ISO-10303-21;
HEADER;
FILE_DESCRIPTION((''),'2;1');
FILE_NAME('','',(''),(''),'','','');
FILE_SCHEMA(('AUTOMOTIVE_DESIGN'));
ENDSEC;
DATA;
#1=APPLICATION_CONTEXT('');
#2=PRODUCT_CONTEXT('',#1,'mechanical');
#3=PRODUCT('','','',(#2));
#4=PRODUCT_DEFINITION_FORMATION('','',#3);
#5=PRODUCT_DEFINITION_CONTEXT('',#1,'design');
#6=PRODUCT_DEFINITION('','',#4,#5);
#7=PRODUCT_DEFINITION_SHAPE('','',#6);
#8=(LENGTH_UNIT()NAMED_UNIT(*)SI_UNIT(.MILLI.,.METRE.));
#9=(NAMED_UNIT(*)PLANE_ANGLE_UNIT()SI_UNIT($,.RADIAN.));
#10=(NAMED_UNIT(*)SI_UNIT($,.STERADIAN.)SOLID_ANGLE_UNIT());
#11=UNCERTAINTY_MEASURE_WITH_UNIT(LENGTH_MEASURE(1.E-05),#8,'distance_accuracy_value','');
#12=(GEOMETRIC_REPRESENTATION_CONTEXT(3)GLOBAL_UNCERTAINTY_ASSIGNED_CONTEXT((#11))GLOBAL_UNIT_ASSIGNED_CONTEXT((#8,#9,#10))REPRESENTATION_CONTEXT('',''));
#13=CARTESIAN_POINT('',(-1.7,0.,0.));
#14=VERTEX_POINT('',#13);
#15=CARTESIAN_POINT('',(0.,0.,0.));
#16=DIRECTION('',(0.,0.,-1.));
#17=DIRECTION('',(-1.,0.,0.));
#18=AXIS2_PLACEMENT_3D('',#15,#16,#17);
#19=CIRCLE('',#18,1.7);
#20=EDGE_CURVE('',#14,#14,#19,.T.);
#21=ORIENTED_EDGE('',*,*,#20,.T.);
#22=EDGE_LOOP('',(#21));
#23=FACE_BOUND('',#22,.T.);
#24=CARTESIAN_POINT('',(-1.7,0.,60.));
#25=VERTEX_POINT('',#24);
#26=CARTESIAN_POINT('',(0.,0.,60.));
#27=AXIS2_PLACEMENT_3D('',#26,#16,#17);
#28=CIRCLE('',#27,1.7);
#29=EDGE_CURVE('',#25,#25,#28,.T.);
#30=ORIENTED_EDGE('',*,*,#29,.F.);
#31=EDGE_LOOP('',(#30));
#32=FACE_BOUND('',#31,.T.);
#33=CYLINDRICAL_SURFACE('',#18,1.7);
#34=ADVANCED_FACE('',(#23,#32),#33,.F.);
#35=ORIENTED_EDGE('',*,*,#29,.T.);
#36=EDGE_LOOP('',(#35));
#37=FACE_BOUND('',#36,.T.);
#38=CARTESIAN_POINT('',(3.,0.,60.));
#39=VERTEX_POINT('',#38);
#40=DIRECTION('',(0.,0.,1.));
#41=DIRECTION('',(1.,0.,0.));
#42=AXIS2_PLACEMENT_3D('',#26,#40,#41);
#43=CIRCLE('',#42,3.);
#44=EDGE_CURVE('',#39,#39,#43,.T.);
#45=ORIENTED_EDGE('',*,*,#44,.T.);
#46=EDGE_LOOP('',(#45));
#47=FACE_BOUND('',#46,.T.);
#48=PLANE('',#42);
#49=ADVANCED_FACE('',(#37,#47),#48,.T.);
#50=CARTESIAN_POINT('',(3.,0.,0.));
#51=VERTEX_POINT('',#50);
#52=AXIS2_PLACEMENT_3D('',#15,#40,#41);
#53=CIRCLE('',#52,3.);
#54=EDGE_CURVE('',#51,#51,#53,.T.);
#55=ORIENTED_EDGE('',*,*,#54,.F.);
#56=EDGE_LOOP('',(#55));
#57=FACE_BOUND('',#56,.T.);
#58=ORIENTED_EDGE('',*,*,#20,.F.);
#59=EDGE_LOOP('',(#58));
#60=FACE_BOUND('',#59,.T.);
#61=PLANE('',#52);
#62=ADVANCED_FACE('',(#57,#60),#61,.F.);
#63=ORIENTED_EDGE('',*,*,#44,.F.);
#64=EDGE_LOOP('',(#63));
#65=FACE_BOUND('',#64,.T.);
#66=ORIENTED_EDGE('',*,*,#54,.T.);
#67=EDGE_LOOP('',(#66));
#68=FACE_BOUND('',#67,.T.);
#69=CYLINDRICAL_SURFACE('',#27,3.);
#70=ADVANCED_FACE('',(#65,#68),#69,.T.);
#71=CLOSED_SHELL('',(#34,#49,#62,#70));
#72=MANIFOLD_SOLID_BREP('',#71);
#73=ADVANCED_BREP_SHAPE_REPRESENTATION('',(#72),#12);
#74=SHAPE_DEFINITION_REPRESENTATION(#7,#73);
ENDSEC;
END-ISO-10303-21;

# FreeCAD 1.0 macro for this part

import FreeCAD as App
import Part
import Sketcher

doc = App.newDocument("Part")
body = doc.addObject("PartDesign::Body", "Body")

# Sketch on XY plane
sketch1 = doc.addObject("Sketcher::SketchObject", "Sketch")
body.addObject(sketch1)
sketch1.AttachmentSupport = (doc.XY_Plane, [""])
sketch1.MapMode = "FlatFace"
sketch1.addGeometry(Part.Circle(App.Vector(0, 0, 0), App.Vector(0, 0, 1), 3), False)
sketch1.addConstraint(Sketcher.Constraint("Coincident", 0, 3, -1, 1))
sketch1.addConstraint(Sketcher.Constraint("Diameter", 0, 6.0))
pad1 = doc.addObject("PartDesign::Pad", "Pad")
body.addObject(pad1)
pad1.Profile = sketch1
pad1.Length = 60

# Sketch on XY plane
sketch2 = doc.addObject("Sketcher::SketchObject", "Sketch001")
body.addObject(sketch2)
sketch2.AttachmentSupport = (doc.XY_Plane, [""])
sketch2.MapMode = "FlatFace"
sketch2.addGeometry(Part.Circle(App.Vector(0, 0, 0), App.Vector(0, 0, 1), 1.7), False)
sketch2.addConstraint(Sketcher.Constraint("Coincident", 0, 3, -1, 1))
sketch2.addConstraint(Sketcher.Constraint("Diameter", 0, 3.4))
doc.recompute()
hole = doc.addObject("PartDesign::Hole", "Hole")
body.addObject(hole)
hole.Profile = sketch2
hole.ThreadType = "None"
hole.Diameter = 3.4
hole.DepthType = "ThroughAll"
hole.Reversed = True

doc.recompute()
